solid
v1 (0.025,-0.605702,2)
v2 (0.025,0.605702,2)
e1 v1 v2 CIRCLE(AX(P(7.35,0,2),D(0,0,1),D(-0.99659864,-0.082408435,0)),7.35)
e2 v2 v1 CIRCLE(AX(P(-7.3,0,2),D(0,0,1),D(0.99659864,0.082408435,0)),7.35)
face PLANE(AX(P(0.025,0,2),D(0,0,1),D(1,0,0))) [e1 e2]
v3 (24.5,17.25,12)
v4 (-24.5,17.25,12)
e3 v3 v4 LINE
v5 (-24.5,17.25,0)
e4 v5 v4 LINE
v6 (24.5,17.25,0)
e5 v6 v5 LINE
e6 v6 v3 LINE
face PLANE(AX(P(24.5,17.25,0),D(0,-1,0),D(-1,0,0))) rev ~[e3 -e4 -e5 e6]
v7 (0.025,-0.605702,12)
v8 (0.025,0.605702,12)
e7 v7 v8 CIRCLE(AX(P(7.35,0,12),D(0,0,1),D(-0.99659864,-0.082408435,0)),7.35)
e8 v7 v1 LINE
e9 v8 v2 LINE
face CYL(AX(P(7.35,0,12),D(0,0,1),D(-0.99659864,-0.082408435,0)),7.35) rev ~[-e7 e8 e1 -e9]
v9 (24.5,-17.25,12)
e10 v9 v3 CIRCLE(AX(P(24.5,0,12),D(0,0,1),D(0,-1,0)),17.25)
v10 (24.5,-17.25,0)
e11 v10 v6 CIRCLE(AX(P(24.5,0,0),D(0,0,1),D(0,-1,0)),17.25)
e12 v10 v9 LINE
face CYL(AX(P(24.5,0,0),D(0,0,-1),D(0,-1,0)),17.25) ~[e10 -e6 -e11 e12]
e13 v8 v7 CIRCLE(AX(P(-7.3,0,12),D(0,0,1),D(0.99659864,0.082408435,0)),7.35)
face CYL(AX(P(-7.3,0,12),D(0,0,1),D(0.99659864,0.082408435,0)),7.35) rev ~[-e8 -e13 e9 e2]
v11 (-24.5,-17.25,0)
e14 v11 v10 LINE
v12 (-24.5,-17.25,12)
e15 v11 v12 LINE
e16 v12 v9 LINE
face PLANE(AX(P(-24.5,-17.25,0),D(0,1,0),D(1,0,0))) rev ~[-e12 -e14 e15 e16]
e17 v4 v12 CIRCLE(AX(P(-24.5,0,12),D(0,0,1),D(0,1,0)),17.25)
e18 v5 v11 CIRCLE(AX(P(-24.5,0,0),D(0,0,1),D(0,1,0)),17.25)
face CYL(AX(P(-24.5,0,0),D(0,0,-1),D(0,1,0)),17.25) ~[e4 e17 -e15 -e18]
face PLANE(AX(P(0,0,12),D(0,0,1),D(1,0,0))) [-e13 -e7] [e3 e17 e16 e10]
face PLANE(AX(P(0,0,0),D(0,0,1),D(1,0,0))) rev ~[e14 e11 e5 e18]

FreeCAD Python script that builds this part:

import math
import FreeCAD as App
import Part
import Sketcher

V = App.Vector

doc = App.newDocument("Part")
body = doc.addObject("PartDesign::Body", "Body")

sketch1 = doc.addObject("Sketcher::SketchObject", "Sketch")
body.addObject(sketch1)
sketch1.AttachmentSupport = (doc.XY_Plane, [""])
sketch1.MapMode = "FlatFace"
sketch1.addGeometry([
    Part.LineSegment(V(24, 17, 0), V(-24, 17, 0)),
    Part.ArcOfCircle(Part.Circle(V(-24, 0, 0), V(0, 0, 1), 17), math.radians(90), math.radians(270)),
    Part.LineSegment(V(-24, -17, 0), V(24, -17, 0)),
    Part.ArcOfCircle(Part.Circle(V(24, 0, 0), V(0, 0, 1), 17), math.radians(-90), math.radians(90)),
], False)
sketch1.addConstraint([
    Sketcher.Constraint("Tangent", 0, 2, 1, 1),
    Sketcher.Constraint("Tangent", 1, 2, 2, 1),
    Sketcher.Constraint("Tangent", 2, 2, 3, 1),
    Sketcher.Constraint("Tangent", 3, 2, 0, 1),
    Sketcher.Constraint("Horizontal", 0),
    Sketcher.Constraint("Horizontal", 2),
    Sketcher.Constraint("Symmetric", 1, 3, 3, 3, -1, 1),
    Sketcher.Constraint("DistanceX", 0, 2, 0, 1, 49.0),
    Sketcher.Constraint("Radius", 1, 17.25),
])
pad1 = doc.addObject("PartDesign::Pad", "Pad")
body.addObject(pad1)
pad1.Profile = sketch1
pad1.Length = 12

sketch2 = doc.addObject("Sketcher::SketchObject", "Sketch001")
body.addObject(sketch2)
sketch2.AttachmentSupport = (doc.XY_Plane, [""])
sketch2.MapMode = "FlatFace"
sketch2.AttachmentOffset = App.Placement(V(0, 0, 12), App.Rotation())
sketch2.addGeometry([
    Part.ArcOfCircle(Part.Circle(V(7.4, 0, 0), V(0, 0, 1), 7.3), math.radians(-175), math.radians(175)),
    Part.ArcOfCircle(Part.Circle(V(-7.3, 0, 0), V(0, 0, 1), 7.3), math.radians(5), math.radians(355)),
], False)
sketch2.addConstraint([
    Sketcher.Constraint("Coincident", 0, 1, 1, 2),
    Sketcher.Constraint("Coincident", 1, 1, 0, 2),
    Sketcher.Constraint("Equal", 0, 1),
    Sketcher.Constraint("Symmetric", 0, 1, 1, 1, -1),
    Sketcher.Constraint("Radius", 0, 7.35),
    Sketcher.Constraint("DistanceX", 1, 3, -1, 1, 7.3),
    Sketcher.Constraint("DistanceX", -1, 1, 0, 3, 7.35),
])
pocket1 = doc.addObject("PartDesign::Pocket", "Pocket")
body.addObject(pocket1)
pocket1.Profile = sketch2
pocket1.Length = 10

doc.recompute()
